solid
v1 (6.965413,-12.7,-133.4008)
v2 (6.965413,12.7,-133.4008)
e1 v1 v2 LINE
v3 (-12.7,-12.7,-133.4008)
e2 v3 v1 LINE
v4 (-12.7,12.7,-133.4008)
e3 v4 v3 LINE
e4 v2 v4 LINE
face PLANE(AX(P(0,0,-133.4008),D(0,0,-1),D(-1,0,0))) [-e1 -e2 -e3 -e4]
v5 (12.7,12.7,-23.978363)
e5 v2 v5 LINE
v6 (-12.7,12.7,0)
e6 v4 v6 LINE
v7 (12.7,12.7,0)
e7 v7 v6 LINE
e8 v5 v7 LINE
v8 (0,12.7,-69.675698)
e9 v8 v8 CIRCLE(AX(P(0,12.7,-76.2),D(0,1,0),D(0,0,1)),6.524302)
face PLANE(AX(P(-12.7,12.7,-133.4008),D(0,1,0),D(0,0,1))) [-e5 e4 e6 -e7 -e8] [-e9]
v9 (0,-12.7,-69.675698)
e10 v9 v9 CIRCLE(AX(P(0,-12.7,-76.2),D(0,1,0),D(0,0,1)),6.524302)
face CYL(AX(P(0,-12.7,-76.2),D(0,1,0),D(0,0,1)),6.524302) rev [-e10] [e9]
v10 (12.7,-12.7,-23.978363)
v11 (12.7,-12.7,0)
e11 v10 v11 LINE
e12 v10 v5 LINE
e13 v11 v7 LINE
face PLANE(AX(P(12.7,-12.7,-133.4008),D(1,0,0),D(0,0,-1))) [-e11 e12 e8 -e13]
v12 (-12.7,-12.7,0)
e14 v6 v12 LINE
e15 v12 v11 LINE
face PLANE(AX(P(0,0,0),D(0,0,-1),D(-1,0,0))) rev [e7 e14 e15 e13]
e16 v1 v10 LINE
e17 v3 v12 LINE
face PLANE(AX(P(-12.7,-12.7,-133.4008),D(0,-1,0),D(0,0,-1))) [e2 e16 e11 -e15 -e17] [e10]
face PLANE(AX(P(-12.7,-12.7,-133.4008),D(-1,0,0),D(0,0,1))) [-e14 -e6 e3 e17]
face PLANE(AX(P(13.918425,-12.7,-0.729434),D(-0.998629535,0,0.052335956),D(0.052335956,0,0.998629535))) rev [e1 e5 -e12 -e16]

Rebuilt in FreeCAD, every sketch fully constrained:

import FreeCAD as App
import Part
import Sketcher

V = App.Vector
Q = App.Units.Quantity


def add_polygon(sketch, points):
    """Adds a closed chain of lines whose ends are joined by coincident constraints."""
    first, n = sketch.GeometryCount, len(points)
    for a, b in zip(points, points[1:] + points[:1]):
        sketch.addGeometry(Part.LineSegment(App.Vector(*a, 0), App.Vector(*b, 0)), False)
    for i in range(n):
        sketch.addConstraint(Sketcher.Constraint("Coincident", first + i, 2, first + (i + 1) % n, 1))

doc = App.newDocument("Part")
body = doc.addObject("PartDesign::Body", "Body")

sketch1 = doc.addObject("Sketcher::SketchObject", "Sketch")
body.addObject(sketch1)
sketch1.AttachmentSupport = (doc.XY_Plane, [""])
sketch1.MapMode = "FlatFace"
add_polygon(sketch1, [(-13, 13), (-13, -13), (13, -13), (13, 13)])
sketch1.addConstraint([
    Sketcher.Constraint("Vertical", 0),
    Sketcher.Constraint("Horizontal", 1),
    Sketcher.Constraint("Vertical", 2),
    Sketcher.Constraint("Horizontal", 3),
    Sketcher.Constraint("Symmetric", 0, 2, 2, 2, -1, 1),
    Sketcher.Constraint("Equal", 3, 0),
    Sketcher.Constraint("DistanceX", 1, 1, 1, 2, Q("1 in")),
])
pad1 = doc.addObject("PartDesign::Pad", "Pad")
body.addObject(pad1)
pad1.Profile = sketch1
pad1.Length = Q("5.252 in")
pad1.Reversed = True

sketch2 = doc.addObject("Sketcher::SketchObject", "Sketch001")
body.addObject(sketch2)
sketch2.AttachmentSupport = (doc.XZ_Plane, [""])
sketch2.MapMode = "FlatFace"
sketch2.AttachmentOffset = App.Placement(V(0, 0, -0.5 * 25.4), App.Rotation())
sketch2.addGeometry(Part.Circle(V(0, -76, 0), V(0, 0, 1), 7), False)
sketch2.addConstraint([
    Sketcher.Constraint("PointOnObject", 0, 3, -2),
    Sketcher.Constraint("DistanceY", 0, 3, -1, 1, Q("3 in")),
    Sketcher.Constraint("Diameter", 0, Q("13.048604 mm")),
])
pocket1 = doc.addObject("PartDesign::Pocket", "Pocket")
body.addObject(pocket1)
pocket1.Profile = sketch2
pocket1.Type = "ThroughAll"
pocket1.Reversed = True

sketch3 = doc.addObject("Sketcher::SketchObject", "Sketch002")
body.addObject(sketch3)
sketch3.AttachmentSupport = (doc.XZ_Plane, [""])
sketch3.MapMode = "FlatFace"
sketch3.AttachmentOffset = App.Placement(V(0, 0, -0.5 * 25.4), App.Rotation())
add_polygon(sketch3, [(13, -133), (7, -133), (13, -24)])
sketch3.addConstraint([
    Sketcher.Constraint("Horizontal", 0),
    Sketcher.Constraint("Vertical", 2),
    Sketcher.Constraint("Angle", 1, Q("87 deg")),
    Sketcher.Constraint("DistanceX", -1, 1, 1, 2, Q("0.5 in")),
    Sketcher.Constraint("DistanceY", 0, 2, -1, 1, Q("5.252 in")),
    Sketcher.Constraint("DistanceX", 0, 2, 0, 1, Q("5.734587 mm")),
])
pocket2 = doc.addObject("PartDesign::Pocket", "Pocket001")
body.addObject(pocket2)
pocket2.Profile = sketch3
pocket2.Type = "ThroughAll"
pocket2.Reversed = True

doc.recompute()
